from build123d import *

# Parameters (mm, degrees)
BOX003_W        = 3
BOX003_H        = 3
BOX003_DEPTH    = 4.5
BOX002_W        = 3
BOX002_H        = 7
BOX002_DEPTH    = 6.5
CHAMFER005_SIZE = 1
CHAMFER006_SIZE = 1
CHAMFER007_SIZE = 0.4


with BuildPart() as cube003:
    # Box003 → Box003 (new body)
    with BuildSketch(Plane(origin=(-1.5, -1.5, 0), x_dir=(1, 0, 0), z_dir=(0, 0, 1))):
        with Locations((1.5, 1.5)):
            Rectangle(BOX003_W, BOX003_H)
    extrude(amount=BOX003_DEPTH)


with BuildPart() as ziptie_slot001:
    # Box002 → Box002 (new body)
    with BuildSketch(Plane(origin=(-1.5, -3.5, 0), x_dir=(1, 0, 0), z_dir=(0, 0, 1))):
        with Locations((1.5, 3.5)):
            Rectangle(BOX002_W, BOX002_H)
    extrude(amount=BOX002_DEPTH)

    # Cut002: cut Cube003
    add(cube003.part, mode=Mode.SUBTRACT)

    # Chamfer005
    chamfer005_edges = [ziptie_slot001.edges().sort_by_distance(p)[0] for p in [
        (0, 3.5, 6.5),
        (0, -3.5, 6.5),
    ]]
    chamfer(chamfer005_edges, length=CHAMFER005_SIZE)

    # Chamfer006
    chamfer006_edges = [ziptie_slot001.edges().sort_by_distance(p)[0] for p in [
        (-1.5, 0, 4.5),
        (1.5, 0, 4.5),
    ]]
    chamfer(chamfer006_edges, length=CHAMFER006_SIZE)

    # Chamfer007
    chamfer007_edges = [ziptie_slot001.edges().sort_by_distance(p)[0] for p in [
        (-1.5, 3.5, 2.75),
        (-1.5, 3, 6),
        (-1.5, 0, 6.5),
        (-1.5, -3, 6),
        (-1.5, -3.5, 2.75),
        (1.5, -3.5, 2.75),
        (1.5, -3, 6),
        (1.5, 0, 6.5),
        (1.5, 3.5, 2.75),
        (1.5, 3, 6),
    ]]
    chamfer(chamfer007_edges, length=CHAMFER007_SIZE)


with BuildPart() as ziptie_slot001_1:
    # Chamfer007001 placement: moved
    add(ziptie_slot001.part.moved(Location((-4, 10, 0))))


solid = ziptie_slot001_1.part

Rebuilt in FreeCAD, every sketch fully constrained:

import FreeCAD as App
import Part
import Sketcher
from FreeCAD import Vector
Q = App.Units.Quantity


def edges_at(feature, points):
    """Names of the edges that pass closest to the given points."""
    edges = feature.Shape.Edges
    near = lambda p: min(range(len(edges)), key=lambda i: edges[i].distToShape(Part.Vertex(*p))[0])
    return sorted({f"Edge{near(p) + 1}" for p in points})

doc = App.newDocument("Part")
params = doc.addObject("Spreadsheet::Sheet", "Params")
for row, (alias, value) in enumerate([
    ("sketch1_width", "3 mm"),
    ("pad1_length", "4.5 mm"),
    ("sketch2_width", "3 mm"),
    ("sketch2_height", "7 mm"),
    ("pad2_length", "6.5 mm"),
    ("chamfer_size", "1 mm"),
    ("chamfer2_size", "1 mm"),
    ("chamfer3_size", "0.4 mm"),
], start=1):
    params.set(f"A{row}", alias)
    params.set(f"B{row}", "=" + value)
    params.setAlias(f"B{row}", alias)

body = doc.addObject("PartDesign::Body", "Body")

# Sketch on XY plane
sketch1 = doc.addObject("Sketcher::SketchObject", "Sketch")
body.addObject(sketch1)
sketch1.AttachmentSupport = (doc.XY_Plane, [""])
sketch1.MapMode = "FlatFace"
sketch1.addGeometry([
    Part.LineSegment(Vector(-1.5, 1.5, 0), Vector(-1.5, -1.5, 0)),
    Part.LineSegment(Vector(-1.5, -1.5, 0), Vector(1.5, -1.5, 0)),
    Part.LineSegment(Vector(1.5, -1.5, 0), Vector(1.5, 1.5, 0)),
    Part.LineSegment(Vector(1.5, 1.5, 0), Vector(-1.5, 1.5, 0)),
], False)
sketch1.addConstraint([
    Sketcher.Constraint("Coincident", 0, 2, 1, 1),
    Sketcher.Constraint("Coincident", 1, 2, 2, 1),
    Sketcher.Constraint("Coincident", 2, 2, 3, 1),
    Sketcher.Constraint("Coincident", 3, 2, 0, 1),
    Sketcher.Constraint("Vertical", 0),
    Sketcher.Constraint("Horizontal", 1),
    Sketcher.Constraint("Vertical", 2),
    Sketcher.Constraint("Horizontal", 3),
    Sketcher.Constraint("Symmetric", 0, 2, 2, 2, -1, 1),
    Sketcher.Constraint("Equal", 3, 0),
    Sketcher.Constraint("DistanceX", 1, 1, 1, 2, Q("3 mm")),
])
sketch1.setExpression("Constraints[10]", "Params.sketch1_width")
pad1 = doc.addObject("PartDesign::Pad", "Pad")
body.addObject(pad1)
pad1.Profile = sketch1
pad1.setExpression("Length", "Params.pad1_length")
body2 = doc.addObject("PartDesign::Body", "Body001")

# Sketch on XY plane
sketch2 = doc.addObject("Sketcher::SketchObject", "Sketch001")
body2.addObject(sketch2)
sketch2.AttachmentSupport = (doc.getObject("XY_Plane001"), [""])
sketch2.MapMode = "FlatFace"
sketch2.addGeometry([
    Part.LineSegment(Vector(-1.5, 3.5, 0), Vector(-1.5, -3.5, 0)),
    Part.LineSegment(Vector(-1.5, -3.5, 0), Vector(1.5, -3.5, 0)),
    Part.LineSegment(Vector(1.5, -3.5, 0), Vector(1.5, 3.5, 0)),
    Part.LineSegment(Vector(1.5, 3.5, 0), Vector(-1.5, 3.5, 0)),
], False)
sketch2.addConstraint([
    Sketcher.Constraint("Coincident", 0, 2, 1, 1),
    Sketcher.Constraint("Coincident", 1, 2, 2, 1),
    Sketcher.Constraint("Coincident", 2, 2, 3, 1),
    Sketcher.Constraint("Coincident", 3, 2, 0, 1),
    Sketcher.Constraint("Vertical", 0),
    Sketcher.Constraint("Horizontal", 1),
    Sketcher.Constraint("Vertical", 2),
    Sketcher.Constraint("Horizontal", 3),
    Sketcher.Constraint("Symmetric", 0, 2, 2, 2, -1, 1),
    Sketcher.Constraint("DistanceX", 1, 1, 1, 2, Q("3 mm")),
    Sketcher.Constraint("DistanceY", 0, 2, 0, 1, Q("7 mm")),
])
sketch2.setExpression("Constraints[9]", "Params.sketch2_width")
sketch2.setExpression("Constraints[10]", "Params.sketch2_height")
pad2 = doc.addObject("PartDesign::Pad", "Pad001")
body2.addObject(pad2)
pad2.Profile = sketch2
pad2.setExpression("Length", "Params.pad2_length")
doc.recompute()

boolean = doc.addObject("PartDesign::Boolean", "Boolean")
body2.addObject(boolean)
boolean.Type = "Cut"
boolean.addObjects([body])
doc.recompute()

chamfer = doc.addObject("PartDesign::Chamfer", "Chamfer")
body2.addObject(chamfer)
chamfer.Base = (boolean, edges_at(boolean, [(0, 3.5, 6.5), (0, -3.5, 6.5)]))
chamfer.setExpression("Size", "Params.chamfer_size")
doc.recompute()

chamfer2 = doc.addObject("PartDesign::Chamfer", "Chamfer001")
body2.addObject(chamfer2)
chamfer2.Base = (chamfer, edges_at(chamfer, [(-1.5, 0, 4.5), (1.5, 0, 4.5)]))
chamfer2.setExpression("Size", "Params.chamfer2_size")
doc.recompute()

chamfer3 = doc.addObject("PartDesign::Chamfer", "Chamfer002")
body2.addObject(chamfer3)
chamfer3.Base = (chamfer2, edges_at(chamfer2, [
    (-1.5, 3.5, 2.75),
    (-1.5, 3, 6),
    (-1.5, 0, 6.5),
    (-1.5, -3, 6),
    (-1.5, -3.5, 2.75),
    (1.5, -3.5, 2.75),
    (1.5, -3, 6),
    (1.5, 0, 6.5),
    (1.5, 3.5, 2.75),
    (1.5, 3, 6),
]))
chamfer3.setExpression("Size", "Params.chamfer3_size")
body3 = doc.addObject("PartDesign::Body", "Body002")
doc.recompute()

body2.Placement = App.Placement(Vector(-4, 10, 0), App.Rotation(Vector(0, 0, 1), 0))
boolean2 = doc.addObject("PartDesign::Boolean", "Boolean001")
body3.addObject(boolean2)
boolean2.Type = "Fuse"
boolean2.addObjects([body2])

doc.recompute()
